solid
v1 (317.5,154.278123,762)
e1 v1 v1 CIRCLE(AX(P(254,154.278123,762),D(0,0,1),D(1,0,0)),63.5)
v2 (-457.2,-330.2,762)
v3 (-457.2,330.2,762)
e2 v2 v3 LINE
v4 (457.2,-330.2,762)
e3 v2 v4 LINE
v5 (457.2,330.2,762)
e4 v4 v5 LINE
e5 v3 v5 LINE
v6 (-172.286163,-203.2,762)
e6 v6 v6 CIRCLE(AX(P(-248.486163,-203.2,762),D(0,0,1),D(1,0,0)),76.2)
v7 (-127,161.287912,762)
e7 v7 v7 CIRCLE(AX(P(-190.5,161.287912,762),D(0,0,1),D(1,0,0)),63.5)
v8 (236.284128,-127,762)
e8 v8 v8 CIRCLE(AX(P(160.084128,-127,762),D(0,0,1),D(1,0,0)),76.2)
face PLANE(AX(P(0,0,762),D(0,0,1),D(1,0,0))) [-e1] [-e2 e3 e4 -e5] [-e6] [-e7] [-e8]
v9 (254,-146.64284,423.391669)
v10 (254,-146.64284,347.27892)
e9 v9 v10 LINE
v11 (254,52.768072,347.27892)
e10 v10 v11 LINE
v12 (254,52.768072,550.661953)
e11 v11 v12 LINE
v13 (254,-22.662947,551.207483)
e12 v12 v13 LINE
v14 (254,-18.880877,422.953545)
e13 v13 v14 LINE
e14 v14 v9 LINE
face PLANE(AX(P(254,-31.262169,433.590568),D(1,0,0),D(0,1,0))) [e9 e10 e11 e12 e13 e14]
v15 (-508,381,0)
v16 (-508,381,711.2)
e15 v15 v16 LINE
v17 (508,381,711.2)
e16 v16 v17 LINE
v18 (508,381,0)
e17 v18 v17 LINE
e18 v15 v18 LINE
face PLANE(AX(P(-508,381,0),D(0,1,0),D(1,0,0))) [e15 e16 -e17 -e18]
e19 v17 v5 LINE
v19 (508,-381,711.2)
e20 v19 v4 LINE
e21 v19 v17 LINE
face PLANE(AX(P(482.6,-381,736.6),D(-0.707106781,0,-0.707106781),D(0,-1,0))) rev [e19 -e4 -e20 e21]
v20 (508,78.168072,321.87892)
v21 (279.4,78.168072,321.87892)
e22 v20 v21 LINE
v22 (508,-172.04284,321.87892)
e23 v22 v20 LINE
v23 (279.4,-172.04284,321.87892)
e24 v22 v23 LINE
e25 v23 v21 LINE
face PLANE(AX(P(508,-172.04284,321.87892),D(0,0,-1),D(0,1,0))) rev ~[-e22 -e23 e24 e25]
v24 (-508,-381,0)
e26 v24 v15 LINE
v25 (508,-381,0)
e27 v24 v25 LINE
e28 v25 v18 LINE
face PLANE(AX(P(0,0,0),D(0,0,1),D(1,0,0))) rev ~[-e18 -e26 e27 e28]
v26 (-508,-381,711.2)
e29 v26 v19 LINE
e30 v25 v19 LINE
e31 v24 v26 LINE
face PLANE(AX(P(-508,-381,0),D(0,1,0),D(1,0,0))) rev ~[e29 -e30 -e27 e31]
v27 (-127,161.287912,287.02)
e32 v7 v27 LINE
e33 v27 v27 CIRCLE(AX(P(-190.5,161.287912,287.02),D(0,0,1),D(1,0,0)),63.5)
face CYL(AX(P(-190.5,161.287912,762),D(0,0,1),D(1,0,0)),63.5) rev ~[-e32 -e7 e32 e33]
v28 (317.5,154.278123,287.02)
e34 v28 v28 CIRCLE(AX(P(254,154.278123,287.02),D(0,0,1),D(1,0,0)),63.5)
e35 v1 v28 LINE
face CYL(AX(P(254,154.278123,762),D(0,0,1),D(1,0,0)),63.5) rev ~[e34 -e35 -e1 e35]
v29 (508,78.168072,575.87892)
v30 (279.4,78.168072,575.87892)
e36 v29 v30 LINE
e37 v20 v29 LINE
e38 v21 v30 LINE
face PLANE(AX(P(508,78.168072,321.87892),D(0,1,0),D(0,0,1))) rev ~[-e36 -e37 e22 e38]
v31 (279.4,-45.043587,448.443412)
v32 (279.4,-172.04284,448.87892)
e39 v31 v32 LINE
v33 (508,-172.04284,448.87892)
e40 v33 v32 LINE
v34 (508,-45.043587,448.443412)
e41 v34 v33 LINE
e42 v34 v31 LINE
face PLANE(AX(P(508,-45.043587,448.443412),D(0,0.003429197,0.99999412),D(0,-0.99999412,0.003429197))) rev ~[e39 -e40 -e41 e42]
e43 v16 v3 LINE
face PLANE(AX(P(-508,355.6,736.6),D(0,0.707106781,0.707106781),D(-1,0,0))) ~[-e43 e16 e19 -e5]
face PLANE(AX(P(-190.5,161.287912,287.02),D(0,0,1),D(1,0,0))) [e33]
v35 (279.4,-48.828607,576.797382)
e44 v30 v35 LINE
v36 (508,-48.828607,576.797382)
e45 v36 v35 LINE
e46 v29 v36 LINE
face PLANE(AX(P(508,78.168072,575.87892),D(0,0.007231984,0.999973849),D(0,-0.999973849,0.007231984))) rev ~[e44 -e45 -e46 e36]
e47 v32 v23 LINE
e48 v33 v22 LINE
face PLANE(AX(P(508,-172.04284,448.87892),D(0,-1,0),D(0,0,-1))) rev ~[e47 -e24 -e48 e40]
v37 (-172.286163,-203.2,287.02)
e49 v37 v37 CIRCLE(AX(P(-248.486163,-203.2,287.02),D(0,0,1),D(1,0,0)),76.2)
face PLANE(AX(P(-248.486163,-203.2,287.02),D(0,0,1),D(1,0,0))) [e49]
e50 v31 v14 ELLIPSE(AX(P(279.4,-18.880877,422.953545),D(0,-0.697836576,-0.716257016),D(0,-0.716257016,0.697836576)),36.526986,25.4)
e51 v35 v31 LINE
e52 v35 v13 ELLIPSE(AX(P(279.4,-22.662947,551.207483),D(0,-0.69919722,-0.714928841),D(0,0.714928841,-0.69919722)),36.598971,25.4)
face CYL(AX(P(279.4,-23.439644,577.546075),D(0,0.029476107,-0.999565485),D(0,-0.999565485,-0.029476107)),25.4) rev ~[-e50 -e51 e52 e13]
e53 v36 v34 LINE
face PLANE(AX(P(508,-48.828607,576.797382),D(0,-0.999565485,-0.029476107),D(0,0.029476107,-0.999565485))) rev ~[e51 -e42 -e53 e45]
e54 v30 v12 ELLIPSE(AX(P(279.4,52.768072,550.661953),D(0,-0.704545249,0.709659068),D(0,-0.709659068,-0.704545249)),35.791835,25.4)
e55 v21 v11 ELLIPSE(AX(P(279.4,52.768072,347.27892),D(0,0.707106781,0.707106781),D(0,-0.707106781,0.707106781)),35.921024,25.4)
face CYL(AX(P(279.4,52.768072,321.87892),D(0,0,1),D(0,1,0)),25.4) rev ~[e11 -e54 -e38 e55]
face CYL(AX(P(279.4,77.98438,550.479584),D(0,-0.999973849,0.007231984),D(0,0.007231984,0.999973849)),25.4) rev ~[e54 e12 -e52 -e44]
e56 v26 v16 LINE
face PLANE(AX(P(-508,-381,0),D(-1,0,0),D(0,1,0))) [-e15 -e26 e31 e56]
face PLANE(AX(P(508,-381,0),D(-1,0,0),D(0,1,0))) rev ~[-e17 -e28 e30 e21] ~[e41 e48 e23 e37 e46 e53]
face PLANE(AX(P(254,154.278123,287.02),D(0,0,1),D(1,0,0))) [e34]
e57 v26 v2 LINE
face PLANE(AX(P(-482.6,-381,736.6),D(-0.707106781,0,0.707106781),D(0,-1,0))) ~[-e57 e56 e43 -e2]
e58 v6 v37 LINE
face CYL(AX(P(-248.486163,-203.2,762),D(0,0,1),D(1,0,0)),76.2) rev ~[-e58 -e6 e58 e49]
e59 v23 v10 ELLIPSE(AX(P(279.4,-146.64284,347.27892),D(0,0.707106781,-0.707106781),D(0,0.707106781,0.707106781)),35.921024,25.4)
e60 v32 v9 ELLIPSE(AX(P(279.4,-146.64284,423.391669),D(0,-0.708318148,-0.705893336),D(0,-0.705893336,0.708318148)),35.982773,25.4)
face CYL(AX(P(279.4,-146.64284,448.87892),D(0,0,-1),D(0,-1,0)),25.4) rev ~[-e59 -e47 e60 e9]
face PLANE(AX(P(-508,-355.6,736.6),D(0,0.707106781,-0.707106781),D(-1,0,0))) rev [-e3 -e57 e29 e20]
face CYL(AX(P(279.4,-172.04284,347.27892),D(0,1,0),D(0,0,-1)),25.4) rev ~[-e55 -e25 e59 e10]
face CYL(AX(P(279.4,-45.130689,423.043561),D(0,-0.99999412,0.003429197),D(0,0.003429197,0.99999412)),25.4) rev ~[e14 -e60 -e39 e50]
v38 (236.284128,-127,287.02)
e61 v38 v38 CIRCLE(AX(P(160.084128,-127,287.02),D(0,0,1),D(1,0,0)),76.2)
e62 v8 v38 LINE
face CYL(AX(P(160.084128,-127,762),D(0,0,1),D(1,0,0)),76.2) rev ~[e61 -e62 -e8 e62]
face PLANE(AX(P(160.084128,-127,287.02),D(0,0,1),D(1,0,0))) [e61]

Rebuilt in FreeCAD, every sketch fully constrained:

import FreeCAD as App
import Part
import Sketcher

V = App.Vector
Q = App.Units.Quantity


def edges_at(feature, points):
    """Names of the edges that pass closest to the given points."""
    edges = feature.Shape.Edges
    near = lambda p: min(range(len(edges)), key=lambda i: edges[i].distToShape(Part.Vertex(*p))[0])
    return sorted({f"Edge{near(p) + 1}" for p in points})


def add_polygon(sketch, points):
    """Adds a closed chain of lines whose ends are joined by coincident constraints."""
    first, n = sketch.GeometryCount, len(points)
    for a, b in zip(points, points[1:] + points[:1]):
        sketch.addGeometry(Part.LineSegment(App.Vector(*a, 0), App.Vector(*b, 0)), False)
    for i in range(n):
        sketch.addConstraint(Sketcher.Constraint("Coincident", first + i, 2, first + (i + 1) % n, 1))

doc = App.newDocument("Part")
body = doc.addObject("PartDesign::Body", "Body")

# Sketch on XY plane
sketch1 = body.newObject("Sketcher::SketchObject", "Sketch")
sketch1.AttachmentSupport = (doc.getObject("XY_Plane"), [""])
sketch1.MapMode = "FlatFace"
add_polygon(sketch1, [(-508, 381), (-508, -381), (508, -381), (508, 381)])  # lines 0-3
sketch1.addConstraint([
    Sketcher.Constraint("Vertical", 0),
    Sketcher.Constraint("Horizontal", 1),
    Sketcher.Constraint("Vertical", 2),
    Sketcher.Constraint("Horizontal", 3),
    Sketcher.Constraint("Symmetric", 0, 2, 2, 2, -1, 1),
    Sketcher.Constraint("DistanceX", 1, 1, 1, 2, Q("40 in")),
    Sketcher.Constraint("DistanceY", 0, 2, 0, 1, Q("30 in")),
])
pad1 = body.newObject("PartDesign::Pad", "Pad")
pad1.Profile = sketch1
pad1.Length = Q("30 in")
doc.recompute()

chamfer = body.newObject("PartDesign::Chamfer", "Chamfer")
chamfer.Base = (pad1, edges_at(pad1, [
    (0, -381, 762),
    (508, 0, 762),
    (0, 381, 762),
    (-508, 0, 762),
]))
chamfer.Size = Q("2 in")

# Sketch on XY plane
sketch2 = body.newObject("Sketcher::SketchObject", "Sketch001")
sketch2.AttachmentSupport = (doc.getObject("XY_Plane"), [""])
sketch2.MapMode = "FlatFace"
sketch2.AttachmentOffset = App.Placement(V(0, 0, 30 * 25.4), App.Rotation())
sketch2.addGeometry([
    Part.Circle(V(254, 154.278123, 0), V(0, 0, 1), 63.5),
    Part.Circle(V(160.084128, -127, 0), V(0, 0, 1), 76.2),
    Part.Circle(V(-190.5, 161.287912, 0), V(0, 0, 1), 63.5),
    Part.Circle(V(-248.486163, -203.2, 0), V(0, 0, 1), 76.2),
], False)
sketch2.addConstraint([
    Sketcher.Constraint("Equal", 0, 2),
    Sketcher.Constraint("Equal", 1, 3),
    Sketcher.Constraint("Diameter", 0, Q("5 in")),
    Sketcher.Constraint("Diameter", 1, Q("6 in")),
    Sketcher.Constraint("DistanceX", -1, 1, 0, 3, Q("10 in")),
    Sketcher.Constraint("DistanceY", 1, 3, -1, 1, Q("5 in")),
    Sketcher.Constraint("DistanceY", 3, 3, -1, 1, Q("8 in")),
    Sketcher.Constraint("DistanceX", 2, 3, -1, 1, Q("7.5 in")),
    Sketcher.Constraint("DistanceX", -1, 1, 1, 3, 160.084128),
    Sketcher.Constraint("DistanceY", -1, 1, 2, 3, 161.287912),
    Sketcher.Constraint("DistanceY", 0, 3, 2, 3, 7.009789),
    Sketcher.Constraint("DistanceX", 3, 3, 1, 3, 408.570291),
])
pocket1 = body.newObject("PartDesign::Pocket", "Pocket")
pocket1.Profile = sketch2
pocket1.Length = Q("18.7 in")

# Sketch on YZ plane
sketch3 = body.newObject("Sketcher::SketchObject", "Sketch002")
sketch3.AttachmentSupport = (doc.getObject("YZ_Plane"), [""])
sketch3.MapMode = "FlatFace"
sketch3.AttachmentOffset = App.Placement(V(0, 0, 20 * 25.4), App.Rotation())
add_polygon(sketch3, [(-172.04284, 448.87892), (-172.04284, 321.87892), (78.168072, 321.87892), (78.168072, 575.87892), (-48.828607, 576.797382), (-45.043587, 448.443412)])  # lines 0-5
sketch3.addConstraint([
    Sketcher.Constraint("Vertical", 0),
    Sketcher.Constraint("Horizontal", 1),
    Sketcher.Constraint("Vertical", 2),
    Sketcher.Constraint("Equal", 3, 5),
    Sketcher.Constraint("DistanceY", 0, 2, 0, 1, Q("5 in")),
    Sketcher.Constraint("DistanceY", 2, 1, 2, 2, Q("10 in")),
    Sketcher.Constraint("Distance", 3, Q("5 in")),
    Sketcher.Constraint("DistanceX", 1, 1, 1, 2, 250.210912),
    Sketcher.Constraint("DistanceX", 0, 2, -1, 1, 172.04284),
    Sketcher.Constraint("DistanceY", -1, 1, 0, 2, 321.87892),
    Sketcher.Constraint("DistanceY", -1, 1, 3, 2, 576.797382),
    Sketcher.Constraint("DistanceY", 4, 2, 3, 2, 128.35397),
])
pocket2 = body.newObject("PartDesign::Pocket", "Pocket001")
pocket2.Profile = sketch3
pocket2.Length = Q("10 in")
doc.recompute()

fillet = body.newObject("PartDesign::Fillet", "Fillet")
fillet.Base = (pocket2, edges_at(pocket2, [
    (254, -108.543, 448.661),
    (254, -46.936, 512.62),
    (254, 14.67, 576.338),
    (254, 78.168, 448.879),
    (254, -46.937, 321.879),
    (254, -172.043, 385.379),
]))
fillet.Radius = Q("1 in")

doc.recompute()
